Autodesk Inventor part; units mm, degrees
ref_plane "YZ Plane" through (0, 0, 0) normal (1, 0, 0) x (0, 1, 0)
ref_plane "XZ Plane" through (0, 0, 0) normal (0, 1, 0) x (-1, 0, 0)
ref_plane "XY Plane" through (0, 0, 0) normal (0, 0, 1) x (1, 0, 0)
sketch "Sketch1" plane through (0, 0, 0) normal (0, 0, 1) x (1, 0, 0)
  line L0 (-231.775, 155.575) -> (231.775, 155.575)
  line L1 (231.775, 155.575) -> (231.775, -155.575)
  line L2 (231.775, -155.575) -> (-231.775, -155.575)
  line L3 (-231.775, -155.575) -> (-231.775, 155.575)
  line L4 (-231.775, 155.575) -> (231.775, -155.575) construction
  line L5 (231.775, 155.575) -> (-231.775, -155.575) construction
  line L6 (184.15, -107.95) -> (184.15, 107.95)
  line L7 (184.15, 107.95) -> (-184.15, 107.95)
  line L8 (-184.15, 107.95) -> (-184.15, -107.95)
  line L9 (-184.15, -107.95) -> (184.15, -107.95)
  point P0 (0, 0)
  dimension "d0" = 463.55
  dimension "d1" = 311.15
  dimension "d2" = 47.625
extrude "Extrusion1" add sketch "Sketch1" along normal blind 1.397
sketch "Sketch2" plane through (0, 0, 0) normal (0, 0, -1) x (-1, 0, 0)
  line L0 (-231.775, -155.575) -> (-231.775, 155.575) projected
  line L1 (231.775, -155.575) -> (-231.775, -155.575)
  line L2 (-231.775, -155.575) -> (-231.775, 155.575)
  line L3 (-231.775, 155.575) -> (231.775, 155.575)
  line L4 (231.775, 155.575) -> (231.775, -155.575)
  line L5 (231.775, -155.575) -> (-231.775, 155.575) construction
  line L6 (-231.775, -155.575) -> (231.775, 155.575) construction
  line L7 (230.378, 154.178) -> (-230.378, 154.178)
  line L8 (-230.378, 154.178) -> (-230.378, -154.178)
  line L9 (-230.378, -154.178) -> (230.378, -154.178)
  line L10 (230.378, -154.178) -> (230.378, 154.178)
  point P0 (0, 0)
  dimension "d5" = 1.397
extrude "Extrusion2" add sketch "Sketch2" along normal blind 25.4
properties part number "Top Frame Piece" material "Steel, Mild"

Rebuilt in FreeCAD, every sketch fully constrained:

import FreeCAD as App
import Part
import Sketcher

V = App.Vector
Q = App.Units.Quantity


def add_polygon(sketch, points):
    """Adds a closed chain of lines whose ends are joined by coincident constraints."""
    first, n = sketch.GeometryCount, len(points)
    for a, b in zip(points, points[1:] + points[:1]):
        sketch.addGeometry(Part.LineSegment(App.Vector(*a, 0), App.Vector(*b, 0)), False)
    for i in range(n):
        sketch.addConstraint(Sketcher.Constraint("Coincident", first + i, 2, first + (i + 1) % n, 1))

doc = App.newDocument("Part")
body = doc.addObject("PartDesign::Body", "Body")

# Sketch on XY plane
sketch1 = doc.addObject("Sketcher::SketchObject", "Sketch")
body.addObject(sketch1)
sketch1.AttachmentSupport = (doc.XY_Plane, [""])
sketch1.MapMode = "FlatFace"
add_polygon(sketch1, [(231.775, 155.575), (-231.775, 155.575), (-231.775, -155.575), (231.775, -155.575)])  # lines 0-3
add_polygon(sketch1, [(184.15, 107.95), (184.15, -107.95), (-184.15, -107.95), (-184.15, 107.95)])  # lines 4-7
sketch1.addConstraint([
    Sketcher.Constraint("Horizontal", 0),
    Sketcher.Constraint("Vertical", 1),
    Sketcher.Constraint("Horizontal", 2),
    Sketcher.Constraint("Vertical", 3),
    Sketcher.Constraint("Vertical", 4),
    Sketcher.Constraint("Horizontal", 5),
    Sketcher.Constraint("Vertical", 6),
    Sketcher.Constraint("Horizontal", 7),
    Sketcher.Constraint("Symmetric", 0, 2, 2, 2, -1, 1),
    Sketcher.Constraint("Symmetric", 4, 2, 6, 2, -1, 1),
    Sketcher.Constraint("DistanceX", 0, 2, 0, 1, Q("18.25 in")),
    Sketcher.Constraint("DistanceY", 1, 2, 1, 1, Q("12.25 in")),
    Sketcher.Constraint("DistanceX", 5, 2, 5, 1, Q("14.5 in")),
    Sketcher.Constraint("DistanceY", 4, 2, 4, 1, Q("8.5 in")),
])
pad1 = doc.addObject("PartDesign::Pad", "Pad")
body.addObject(pad1)
pad1.Profile = sketch1
pad1.Length = Q("0.055 in")

# Sketch on XY plane
sketch2 = doc.addObject("Sketcher::SketchObject", "Sketch001")
body.addObject(sketch2)
sketch2.AttachmentSupport = (doc.XY_Plane, [""])
sketch2.MapMode = "FlatFace"
add_polygon(sketch2, [(231.775, 155.575), (231.775, -155.575), (-231.775, -155.575), (-231.775, 155.575)])  # lines 0-3
add_polygon(sketch2, [(230.378, 154.178), (-230.378, 154.178), (-230.378, -154.178), (230.378, -154.178)])  # lines 4-7
sketch2.addConstraint([
    Sketcher.Constraint("Vertical", 0),
    Sketcher.Constraint("Horizontal", 1),
    Sketcher.Constraint("Vertical", 2),
    Sketcher.Constraint("Horizontal", 3),
    Sketcher.Constraint("Horizontal", 4),
    Sketcher.Constraint("Vertical", 5),
    Sketcher.Constraint("Horizontal", 6),
    Sketcher.Constraint("Vertical", 7),
    Sketcher.Constraint("Symmetric", 0, 2, 2, 2, -1, 1),
    Sketcher.Constraint("Symmetric", 4, 2, 6, 2, -1, 1),
    Sketcher.Constraint("DistanceX", 2, 2, 4, 2, Q("0.055 in")),
    Sketcher.Constraint("DistanceY", 4, 2, 2, 2, Q("0.055 in")),
    Sketcher.Constraint("DistanceX", 1, 2, 1, 1, Q("18.25 in")),
    Sketcher.Constraint("DistanceY", 0, 2, 0, 1, Q("12.25 in")),
])
pad2 = doc.addObject("PartDesign::Pad", "Pad001")
body.addObject(pad2)
pad2.Profile = sketch2
pad2.Length = Q("1 in")
pad2.Reversed = True

doc.recompute()
